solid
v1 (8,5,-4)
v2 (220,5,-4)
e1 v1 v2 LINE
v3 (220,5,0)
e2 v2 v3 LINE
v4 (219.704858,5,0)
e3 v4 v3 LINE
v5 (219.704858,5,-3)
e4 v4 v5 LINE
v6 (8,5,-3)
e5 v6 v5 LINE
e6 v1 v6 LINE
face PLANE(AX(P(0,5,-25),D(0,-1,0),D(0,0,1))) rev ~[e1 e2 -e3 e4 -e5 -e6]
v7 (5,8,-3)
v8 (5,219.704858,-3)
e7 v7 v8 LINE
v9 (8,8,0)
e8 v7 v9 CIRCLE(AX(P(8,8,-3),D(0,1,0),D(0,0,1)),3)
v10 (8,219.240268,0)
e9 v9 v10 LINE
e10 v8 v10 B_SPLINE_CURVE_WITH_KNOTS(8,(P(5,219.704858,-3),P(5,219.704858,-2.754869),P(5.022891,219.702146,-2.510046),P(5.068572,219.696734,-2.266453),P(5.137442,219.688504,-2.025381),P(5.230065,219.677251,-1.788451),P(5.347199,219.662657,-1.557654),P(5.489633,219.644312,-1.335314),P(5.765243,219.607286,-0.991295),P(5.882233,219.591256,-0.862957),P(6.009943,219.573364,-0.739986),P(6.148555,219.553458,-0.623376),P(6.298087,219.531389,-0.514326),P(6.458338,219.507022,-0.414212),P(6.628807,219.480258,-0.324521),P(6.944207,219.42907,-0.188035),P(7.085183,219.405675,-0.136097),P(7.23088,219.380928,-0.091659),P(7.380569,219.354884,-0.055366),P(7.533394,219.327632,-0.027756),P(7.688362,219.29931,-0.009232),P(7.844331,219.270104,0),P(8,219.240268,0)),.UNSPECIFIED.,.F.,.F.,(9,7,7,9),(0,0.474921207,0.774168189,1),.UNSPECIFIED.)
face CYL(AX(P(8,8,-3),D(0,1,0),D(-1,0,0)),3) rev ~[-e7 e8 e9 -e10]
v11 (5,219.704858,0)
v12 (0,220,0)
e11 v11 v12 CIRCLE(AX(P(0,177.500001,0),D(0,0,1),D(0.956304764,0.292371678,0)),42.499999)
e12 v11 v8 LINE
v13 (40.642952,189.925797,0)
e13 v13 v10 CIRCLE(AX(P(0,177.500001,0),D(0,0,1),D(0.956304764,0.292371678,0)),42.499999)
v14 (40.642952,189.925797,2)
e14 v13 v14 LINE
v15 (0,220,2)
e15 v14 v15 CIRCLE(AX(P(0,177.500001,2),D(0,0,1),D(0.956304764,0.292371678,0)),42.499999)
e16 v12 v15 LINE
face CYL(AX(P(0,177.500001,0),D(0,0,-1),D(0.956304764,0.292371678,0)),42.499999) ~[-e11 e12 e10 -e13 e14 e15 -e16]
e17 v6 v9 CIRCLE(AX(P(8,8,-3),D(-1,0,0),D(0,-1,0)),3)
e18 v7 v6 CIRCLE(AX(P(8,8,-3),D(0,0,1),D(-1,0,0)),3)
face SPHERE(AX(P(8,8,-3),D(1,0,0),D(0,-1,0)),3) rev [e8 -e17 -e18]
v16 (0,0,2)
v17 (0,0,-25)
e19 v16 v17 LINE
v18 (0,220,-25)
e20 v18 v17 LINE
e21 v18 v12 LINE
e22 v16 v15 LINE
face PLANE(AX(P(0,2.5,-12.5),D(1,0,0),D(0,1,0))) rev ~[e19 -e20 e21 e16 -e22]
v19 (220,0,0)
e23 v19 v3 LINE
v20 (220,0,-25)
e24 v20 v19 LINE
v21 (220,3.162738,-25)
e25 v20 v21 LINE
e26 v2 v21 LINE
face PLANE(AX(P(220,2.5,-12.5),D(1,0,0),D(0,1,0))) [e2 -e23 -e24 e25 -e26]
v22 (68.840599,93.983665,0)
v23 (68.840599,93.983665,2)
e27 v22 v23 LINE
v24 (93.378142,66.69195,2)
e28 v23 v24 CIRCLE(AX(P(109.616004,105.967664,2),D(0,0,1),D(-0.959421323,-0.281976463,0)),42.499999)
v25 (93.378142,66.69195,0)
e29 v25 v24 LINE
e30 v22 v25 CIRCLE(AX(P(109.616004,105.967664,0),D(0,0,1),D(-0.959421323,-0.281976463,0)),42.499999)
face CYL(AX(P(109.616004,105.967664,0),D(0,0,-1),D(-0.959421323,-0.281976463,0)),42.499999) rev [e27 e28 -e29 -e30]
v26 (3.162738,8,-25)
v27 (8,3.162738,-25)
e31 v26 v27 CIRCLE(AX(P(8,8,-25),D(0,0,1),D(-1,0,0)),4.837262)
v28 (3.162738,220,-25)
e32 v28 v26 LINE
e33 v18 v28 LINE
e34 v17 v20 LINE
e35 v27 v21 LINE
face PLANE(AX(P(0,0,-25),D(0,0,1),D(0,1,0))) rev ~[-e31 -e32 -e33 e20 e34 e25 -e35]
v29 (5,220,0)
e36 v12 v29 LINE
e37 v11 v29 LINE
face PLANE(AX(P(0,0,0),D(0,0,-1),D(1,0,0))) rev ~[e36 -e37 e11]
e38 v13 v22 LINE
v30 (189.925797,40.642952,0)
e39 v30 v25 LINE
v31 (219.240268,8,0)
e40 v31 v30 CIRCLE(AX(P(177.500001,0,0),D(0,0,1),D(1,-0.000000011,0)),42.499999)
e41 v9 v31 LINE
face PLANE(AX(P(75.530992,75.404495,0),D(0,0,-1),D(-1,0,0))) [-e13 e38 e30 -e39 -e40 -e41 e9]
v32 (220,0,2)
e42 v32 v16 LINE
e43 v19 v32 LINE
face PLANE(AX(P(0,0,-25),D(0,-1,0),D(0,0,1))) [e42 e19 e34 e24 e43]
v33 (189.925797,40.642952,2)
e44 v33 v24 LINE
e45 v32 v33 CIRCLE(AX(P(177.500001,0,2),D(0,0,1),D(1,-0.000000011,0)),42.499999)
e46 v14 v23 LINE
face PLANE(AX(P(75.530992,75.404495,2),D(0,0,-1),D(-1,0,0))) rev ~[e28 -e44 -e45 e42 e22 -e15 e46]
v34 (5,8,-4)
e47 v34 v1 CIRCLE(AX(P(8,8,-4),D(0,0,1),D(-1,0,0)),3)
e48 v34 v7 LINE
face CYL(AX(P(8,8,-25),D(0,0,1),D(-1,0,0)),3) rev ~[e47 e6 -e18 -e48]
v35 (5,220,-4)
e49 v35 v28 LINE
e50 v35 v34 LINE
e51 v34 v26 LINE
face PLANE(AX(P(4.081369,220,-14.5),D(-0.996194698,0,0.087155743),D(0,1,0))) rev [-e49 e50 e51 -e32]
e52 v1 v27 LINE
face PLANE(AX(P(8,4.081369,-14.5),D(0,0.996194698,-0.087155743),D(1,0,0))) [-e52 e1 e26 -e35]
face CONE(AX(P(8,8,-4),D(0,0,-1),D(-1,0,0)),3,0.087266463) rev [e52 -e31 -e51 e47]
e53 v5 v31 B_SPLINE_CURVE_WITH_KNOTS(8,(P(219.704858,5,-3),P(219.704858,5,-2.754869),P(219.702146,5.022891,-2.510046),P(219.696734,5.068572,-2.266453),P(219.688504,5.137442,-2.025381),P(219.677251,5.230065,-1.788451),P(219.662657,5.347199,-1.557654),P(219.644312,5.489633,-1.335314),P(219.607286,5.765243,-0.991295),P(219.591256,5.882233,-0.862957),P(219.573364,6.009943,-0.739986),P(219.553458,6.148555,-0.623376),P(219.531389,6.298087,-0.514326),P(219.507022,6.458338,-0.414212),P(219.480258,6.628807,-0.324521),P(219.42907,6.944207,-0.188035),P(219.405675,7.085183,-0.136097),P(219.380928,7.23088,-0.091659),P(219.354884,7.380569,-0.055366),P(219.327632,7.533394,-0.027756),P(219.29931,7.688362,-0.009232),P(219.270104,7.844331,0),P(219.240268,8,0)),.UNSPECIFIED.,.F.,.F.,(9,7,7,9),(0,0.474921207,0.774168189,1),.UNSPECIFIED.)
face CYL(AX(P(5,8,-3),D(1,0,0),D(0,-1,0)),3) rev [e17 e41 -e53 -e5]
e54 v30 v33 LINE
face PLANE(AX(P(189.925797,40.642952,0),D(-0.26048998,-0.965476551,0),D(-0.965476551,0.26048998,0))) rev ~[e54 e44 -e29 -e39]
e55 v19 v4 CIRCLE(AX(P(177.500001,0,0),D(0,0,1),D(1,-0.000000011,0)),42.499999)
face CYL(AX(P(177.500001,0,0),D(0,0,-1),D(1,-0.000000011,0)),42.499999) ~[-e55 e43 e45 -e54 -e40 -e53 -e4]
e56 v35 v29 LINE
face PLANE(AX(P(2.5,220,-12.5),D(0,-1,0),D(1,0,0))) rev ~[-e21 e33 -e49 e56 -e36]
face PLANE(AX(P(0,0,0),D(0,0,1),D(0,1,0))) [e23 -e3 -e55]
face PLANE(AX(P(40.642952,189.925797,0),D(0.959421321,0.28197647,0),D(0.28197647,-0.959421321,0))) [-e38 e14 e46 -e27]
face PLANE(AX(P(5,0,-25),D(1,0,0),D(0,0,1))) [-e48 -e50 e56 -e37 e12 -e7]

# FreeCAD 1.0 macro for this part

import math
import FreeCAD as App
import Part
import Sketcher

V = App.Vector


def edges_at(feature, points):
    """Names of the edges that pass closest to the given points."""
    edges = feature.Shape.Edges
    near = lambda p: min(range(len(edges)), key=lambda i: edges[i].distToShape(Part.Vertex(*p))[0])
    return sorted({f"Edge{near(p) + 1}" for p in points})


def add_polygon(sketch, points):
    """Adds a closed chain of lines whose ends are joined by coincident constraints."""
    first, n = sketch.GeometryCount, len(points)
    for a, b in zip(points, points[1:] + points[:1]):
        sketch.addGeometry(Part.LineSegment(App.Vector(*a, 0), App.Vector(*b, 0)), False)
    for i in range(n):
        sketch.addConstraint(Sketcher.Constraint("Coincident", first + i, 2, first + (i + 1) % n, 1))

doc = App.newDocument("Part")
body = doc.addObject("PartDesign::Body", "Body")

# Sketch on XY plane
sketch1 = doc.addObject("Sketcher::SketchObject", "Sketch")
body.addObject(sketch1)
sketch1.AttachmentSupport = (doc.XY_Plane, [""])
sketch1.MapMode = "FlatFace"
sketch1.addGeometry([
    Part.LineSegment(V(0, 220, 0), V(0, 0, 0)),  # 0
    Part.LineSegment(V(0, 0, 0), V(220, 0, 0)),  # 1
    Part.ArcOfCircle(Part.Circle(V(178, 0, 0), V(0, 0, 1), 42), math.radians(0), math.radians(73)),  # 2
    Part.LineSegment(V(190, 41, 0), V(93, 67, 0)),  # 3
    Part.ArcOfCircle(Part.Circle(V(110, 106, 0), V(0, 0, 1), 42), math.radians(-164), math.radians(-112)),  # 4
    Part.LineSegment(V(69, 94, 0), V(41, 190, 0)),  # 5
    Part.ArcOfCircle(Part.Circle(V(0, 178, 0), V(0, 0, 1), 42), math.radians(17), math.radians(90)),  # 6
], False)
sketch1.addConstraint([
    Sketcher.Constraint("Coincident", 0, 2, 1, 1),
    Sketcher.Constraint("Coincident", 1, 2, 2, 1),
    Sketcher.Constraint("Coincident", 2, 2, 3, 1),
    Sketcher.Constraint("Coincident", 3, 2, 4, 2),
    Sketcher.Constraint("Tangent", 4, 1, 5, 1),
    Sketcher.Constraint("Coincident", 5, 2, 6, 1),
    Sketcher.Constraint("Coincident", 6, 2, 0, 1),
    Sketcher.Constraint("Vertical", 0),
    Sketcher.Constraint("Horizontal", 1),
    Sketcher.Constraint("Coincident", 0, 2, -1, 1),
    Sketcher.Constraint("Equal", 2, 4),
    Sketcher.Constraint("Equal", 4, 6),
    Sketcher.Constraint("PointOnObject", 2, 3, -1),
    Sketcher.Constraint("PointOnObject", 6, 3, -2),
    Sketcher.Constraint("Equal", 1, 0),
    Sketcher.Constraint("Equal", 3, 5),
    Sketcher.Constraint("Radius", 2, 42.499999),
    Sketcher.Constraint("DistanceX", 1, 1, 1, 2, 220.0),
    Sketcher.Constraint("Distance", 3, 100.0),
    Sketcher.Constraint("DistanceY", 4, 1, 4, 3, 11.983999),
    Sketcher.Constraint("DistanceX", -1, 1, 4, 1, 68.840599),
    Sketcher.Constraint("DistanceX", -1, 1, 3, 2, 93.378142),
])
pad1 = doc.addObject("PartDesign::Pad", "Pad")
body.addObject(pad1)
pad1.Profile = sketch1
pad1.Length = 2

# Sketch on YZ plane
sketch2 = doc.addObject("Sketcher::SketchObject", "Sketch001")
body.addObject(sketch2)
sketch2.AttachmentSupport = (doc.YZ_Plane, [""])
sketch2.MapMode = "FlatFace"
add_polygon(sketch2, [(0, 0), (0, -25), (5, -25), (5, 0)])  # lines 0-3
sketch2.addConstraint([
    Sketcher.Constraint("Vertical", 0),
    Sketcher.Constraint("Horizontal", 1),
    Sketcher.Constraint("Vertical", 2),
    Sketcher.Constraint("Horizontal", 3),
    Sketcher.Constraint("Coincident", 3, 2, -1, 1),
    Sketcher.Constraint("DistanceX", 1, 1, 1, 2, 5.0),
    Sketcher.Constraint("DistanceY", 0, 2, 0, 1, 25.0),
])
pad2 = doc.addObject("PartDesign::Pad", "Pad001")
body.addObject(pad2)
pad2.Profile = sketch2
pad2.Length = 220

# Sketch on XZ plane
sketch3 = doc.addObject("Sketcher::SketchObject", "Sketch002")
body.addObject(sketch3)
sketch3.AttachmentSupport = (doc.XZ_Plane, [""])
sketch3.MapMode = "FlatFace"
add_polygon(sketch3, [(0, 0), (0, -25), (5, -25), (5, 0)])  # lines 0-3
sketch3.addConstraint([
    Sketcher.Constraint("Vertical", 0),
    Sketcher.Constraint("Horizontal", 1),
    Sketcher.Constraint("Vertical", 2),
    Sketcher.Constraint("Horizontal", 3),
    Sketcher.Constraint("Coincident", 3, 2, -1, 1),
    Sketcher.Constraint("DistanceX", 1, 1, 1, 2, 5.0),
    Sketcher.Constraint("DistanceY", 0, 2, 0, 1, 25.0),
])
pad3 = doc.addObject("PartDesign::Pad", "Pad002")
body.addObject(pad3)
pad3.Profile = sketch3
pad3.Length = 220
pad3.Reversed = True
doc.recompute()

fillet = doc.addObject("PartDesign::Fillet", "Fillet")
body.addObject(fillet)
fillet.Base = (pad3, edges_at(pad3, [(112.352, 5, 0)]))
fillet.Radius = 3
doc.recompute()

fillet2 = doc.addObject("PartDesign::Fillet", "Fillet001")
body.addObject(fillet2)
fillet2.Base = (fillet, edges_at(fillet, [(5, 113.852, 0), (5, 5, -14)]))
fillet2.Radius = 3
doc.recompute()

chamfer = doc.addObject("PartDesign::Chamfer", "Chamfer")
body.addObject(chamfer)
chamfer.Base = (fillet2, edges_at(fillet2, [(114, 5, -25)]))
chamfer.ChamferType = "Distance and Angle"
chamfer.Size = 21
chamfer.Angle = 5

doc.recompute()
